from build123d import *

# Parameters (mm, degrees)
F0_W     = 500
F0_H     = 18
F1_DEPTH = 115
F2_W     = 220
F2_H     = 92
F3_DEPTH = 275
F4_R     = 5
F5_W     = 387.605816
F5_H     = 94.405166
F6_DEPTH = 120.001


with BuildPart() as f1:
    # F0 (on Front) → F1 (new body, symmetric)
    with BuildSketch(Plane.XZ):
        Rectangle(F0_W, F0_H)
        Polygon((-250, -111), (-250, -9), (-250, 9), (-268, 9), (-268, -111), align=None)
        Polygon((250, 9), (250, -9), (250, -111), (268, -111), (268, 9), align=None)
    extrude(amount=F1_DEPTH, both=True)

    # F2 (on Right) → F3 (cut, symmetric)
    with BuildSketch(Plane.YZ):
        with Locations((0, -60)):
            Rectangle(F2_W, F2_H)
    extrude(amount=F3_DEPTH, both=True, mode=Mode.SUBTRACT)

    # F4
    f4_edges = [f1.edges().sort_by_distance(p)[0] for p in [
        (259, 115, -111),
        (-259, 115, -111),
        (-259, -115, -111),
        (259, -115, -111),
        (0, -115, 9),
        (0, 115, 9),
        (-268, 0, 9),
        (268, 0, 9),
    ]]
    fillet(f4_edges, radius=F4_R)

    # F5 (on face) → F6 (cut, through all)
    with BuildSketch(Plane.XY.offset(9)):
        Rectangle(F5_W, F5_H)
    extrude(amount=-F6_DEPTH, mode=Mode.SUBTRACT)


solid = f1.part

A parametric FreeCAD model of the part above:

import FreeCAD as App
import Part
import Sketcher

V = App.Vector


def edges_at(feature, points):
    """Names of the edges that pass closest to the given points."""
    edges = feature.Shape.Edges
    near = lambda p: min(range(len(edges)), key=lambda i: edges[i].distToShape(Part.Vertex(*p))[0])
    return sorted({f"Edge{near(p) + 1}" for p in points})


def add_polygon(sketch, points):
    """Adds a closed chain of lines whose ends are joined by coincident constraints."""
    first, n = sketch.GeometryCount, len(points)
    for a, b in zip(points, points[1:] + points[:1]):
        sketch.addGeometry(Part.LineSegment(App.Vector(*a, 0), App.Vector(*b, 0)), False)
    for i in range(n):
        sketch.addConstraint(Sketcher.Constraint("Coincident", first + i, 2, first + (i + 1) % n, 1))

doc = App.newDocument("Part")
body = doc.addObject("PartDesign::Body", "Body")

sketch1 = body.newObject("Sketcher::SketchObject", "Sketch")
sketch1.AttachmentSupport = (doc.getObject("XZ_Plane"), [""])
sketch1.MapMode = "FlatFace"
add_polygon(sketch1, [(-250, -9), (250, -9), (250, -111), (268, -111), (268, 9), (-268, 9), (-268, -111), (-250, -111)])
sketch1.addConstraint([
    Sketcher.Constraint("Horizontal", 0),
    Sketcher.Constraint("Vertical", 1),
    Sketcher.Constraint("Horizontal", 2),
    Sketcher.Constraint("Vertical", 3),
    Sketcher.Constraint("Horizontal", 4),
    Sketcher.Constraint("Vertical", 5),
    Sketcher.Constraint("Horizontal", 6),
    Sketcher.Constraint("Vertical", 7),
    Sketcher.Constraint("Symmetric", 2, 2, 5, 2, -2),
    Sketcher.Constraint("Equal", 2, 6),
    Sketcher.Constraint("DistanceX", 0, 1, 0, 2, 500.0),
    Sketcher.Constraint("DistanceX", 2, 1, 2, 2, 18.0),
    Sketcher.Constraint("DistanceY", 1, 2, 1, 1, 102.0),
    Sketcher.Constraint("DistanceY", 3, 1, 3, 2, 120.0),
    Sketcher.Constraint("DistanceY", 0, 2, -1, 1, 9.0),
])
pad1 = body.newObject("PartDesign::Pad", "Pad")
pad1.Profile = sketch1
pad1.Length = 230
pad1.Midplane = True

sketch2 = body.newObject("Sketcher::SketchObject", "Sketch001")
sketch2.AttachmentSupport = (doc.getObject("YZ_Plane"), [""])
sketch2.MapMode = "FlatFace"
add_polygon(sketch2, [(-110, -14), (-110, -106), (110, -106), (110, -14)])
sketch2.addConstraint([
    Sketcher.Constraint("Vertical", 0),
    Sketcher.Constraint("Horizontal", 1),
    Sketcher.Constraint("Vertical", 2),
    Sketcher.Constraint("Horizontal", 3),
    Sketcher.Constraint("DistanceX", 1, 1, 1, 2, 220.0),
    Sketcher.Constraint("DistanceY", 0, 2, 0, 1, 92.0),
    Sketcher.Constraint("DistanceX", 0, 2, -1, 1, 110.0),
    Sketcher.Constraint("DistanceY", 0, 2, -1, 1, 106.0),
])
pocket1 = body.newObject("PartDesign::Pocket", "Pocket")
pocket1.Profile = sketch2
pocket1.Length = 550
pocket1.Midplane = True
doc.recompute()

fillet = body.newObject("PartDesign::Fillet", "Fillet")
fillet.Base = (pocket1, edges_at(pocket1, [
    (259, 115, -111),
    (-259, 115, -111),
    (-259, -115, -111),
    (259, -115, -111),
    (0, -115, 9),
    (0, 115, 9),
    (-268, 0, 9),
    (268, 0, 9),
]))
fillet.Radius = 5

sketch3 = body.newObject("Sketcher::SketchObject", "Sketch002")
sketch3.AttachmentSupport = (doc.getObject("XY_Plane"), [""])
sketch3.MapMode = "FlatFace"
sketch3.AttachmentOffset = App.Placement(V(0, 0, 9), App.Rotation())
add_polygon(sketch3, [(-193.802908, 47.202583), (-193.802908, -47.202583), (193.802908, -47.202583), (193.802908, 47.202583)])
sketch3.addConstraint([
    Sketcher.Constraint("Vertical", 0),
    Sketcher.Constraint("Horizontal", 1),
    Sketcher.Constraint("Vertical", 2),
    Sketcher.Constraint("Horizontal", 3),
    Sketcher.Constraint("Symmetric", 0, 2, 2, 2, -1, 1),
    Sketcher.Constraint("DistanceX", 1, 1, 1, 2, 387.605816),
    Sketcher.Constraint("DistanceY", 0, 2, 0, 1, 94.405166),
])
pocket2 = body.newObject("PartDesign::Pocket", "Pocket001")
pocket2.Profile = sketch3
pocket2.Type = "ThroughAll"

doc.recompute()
